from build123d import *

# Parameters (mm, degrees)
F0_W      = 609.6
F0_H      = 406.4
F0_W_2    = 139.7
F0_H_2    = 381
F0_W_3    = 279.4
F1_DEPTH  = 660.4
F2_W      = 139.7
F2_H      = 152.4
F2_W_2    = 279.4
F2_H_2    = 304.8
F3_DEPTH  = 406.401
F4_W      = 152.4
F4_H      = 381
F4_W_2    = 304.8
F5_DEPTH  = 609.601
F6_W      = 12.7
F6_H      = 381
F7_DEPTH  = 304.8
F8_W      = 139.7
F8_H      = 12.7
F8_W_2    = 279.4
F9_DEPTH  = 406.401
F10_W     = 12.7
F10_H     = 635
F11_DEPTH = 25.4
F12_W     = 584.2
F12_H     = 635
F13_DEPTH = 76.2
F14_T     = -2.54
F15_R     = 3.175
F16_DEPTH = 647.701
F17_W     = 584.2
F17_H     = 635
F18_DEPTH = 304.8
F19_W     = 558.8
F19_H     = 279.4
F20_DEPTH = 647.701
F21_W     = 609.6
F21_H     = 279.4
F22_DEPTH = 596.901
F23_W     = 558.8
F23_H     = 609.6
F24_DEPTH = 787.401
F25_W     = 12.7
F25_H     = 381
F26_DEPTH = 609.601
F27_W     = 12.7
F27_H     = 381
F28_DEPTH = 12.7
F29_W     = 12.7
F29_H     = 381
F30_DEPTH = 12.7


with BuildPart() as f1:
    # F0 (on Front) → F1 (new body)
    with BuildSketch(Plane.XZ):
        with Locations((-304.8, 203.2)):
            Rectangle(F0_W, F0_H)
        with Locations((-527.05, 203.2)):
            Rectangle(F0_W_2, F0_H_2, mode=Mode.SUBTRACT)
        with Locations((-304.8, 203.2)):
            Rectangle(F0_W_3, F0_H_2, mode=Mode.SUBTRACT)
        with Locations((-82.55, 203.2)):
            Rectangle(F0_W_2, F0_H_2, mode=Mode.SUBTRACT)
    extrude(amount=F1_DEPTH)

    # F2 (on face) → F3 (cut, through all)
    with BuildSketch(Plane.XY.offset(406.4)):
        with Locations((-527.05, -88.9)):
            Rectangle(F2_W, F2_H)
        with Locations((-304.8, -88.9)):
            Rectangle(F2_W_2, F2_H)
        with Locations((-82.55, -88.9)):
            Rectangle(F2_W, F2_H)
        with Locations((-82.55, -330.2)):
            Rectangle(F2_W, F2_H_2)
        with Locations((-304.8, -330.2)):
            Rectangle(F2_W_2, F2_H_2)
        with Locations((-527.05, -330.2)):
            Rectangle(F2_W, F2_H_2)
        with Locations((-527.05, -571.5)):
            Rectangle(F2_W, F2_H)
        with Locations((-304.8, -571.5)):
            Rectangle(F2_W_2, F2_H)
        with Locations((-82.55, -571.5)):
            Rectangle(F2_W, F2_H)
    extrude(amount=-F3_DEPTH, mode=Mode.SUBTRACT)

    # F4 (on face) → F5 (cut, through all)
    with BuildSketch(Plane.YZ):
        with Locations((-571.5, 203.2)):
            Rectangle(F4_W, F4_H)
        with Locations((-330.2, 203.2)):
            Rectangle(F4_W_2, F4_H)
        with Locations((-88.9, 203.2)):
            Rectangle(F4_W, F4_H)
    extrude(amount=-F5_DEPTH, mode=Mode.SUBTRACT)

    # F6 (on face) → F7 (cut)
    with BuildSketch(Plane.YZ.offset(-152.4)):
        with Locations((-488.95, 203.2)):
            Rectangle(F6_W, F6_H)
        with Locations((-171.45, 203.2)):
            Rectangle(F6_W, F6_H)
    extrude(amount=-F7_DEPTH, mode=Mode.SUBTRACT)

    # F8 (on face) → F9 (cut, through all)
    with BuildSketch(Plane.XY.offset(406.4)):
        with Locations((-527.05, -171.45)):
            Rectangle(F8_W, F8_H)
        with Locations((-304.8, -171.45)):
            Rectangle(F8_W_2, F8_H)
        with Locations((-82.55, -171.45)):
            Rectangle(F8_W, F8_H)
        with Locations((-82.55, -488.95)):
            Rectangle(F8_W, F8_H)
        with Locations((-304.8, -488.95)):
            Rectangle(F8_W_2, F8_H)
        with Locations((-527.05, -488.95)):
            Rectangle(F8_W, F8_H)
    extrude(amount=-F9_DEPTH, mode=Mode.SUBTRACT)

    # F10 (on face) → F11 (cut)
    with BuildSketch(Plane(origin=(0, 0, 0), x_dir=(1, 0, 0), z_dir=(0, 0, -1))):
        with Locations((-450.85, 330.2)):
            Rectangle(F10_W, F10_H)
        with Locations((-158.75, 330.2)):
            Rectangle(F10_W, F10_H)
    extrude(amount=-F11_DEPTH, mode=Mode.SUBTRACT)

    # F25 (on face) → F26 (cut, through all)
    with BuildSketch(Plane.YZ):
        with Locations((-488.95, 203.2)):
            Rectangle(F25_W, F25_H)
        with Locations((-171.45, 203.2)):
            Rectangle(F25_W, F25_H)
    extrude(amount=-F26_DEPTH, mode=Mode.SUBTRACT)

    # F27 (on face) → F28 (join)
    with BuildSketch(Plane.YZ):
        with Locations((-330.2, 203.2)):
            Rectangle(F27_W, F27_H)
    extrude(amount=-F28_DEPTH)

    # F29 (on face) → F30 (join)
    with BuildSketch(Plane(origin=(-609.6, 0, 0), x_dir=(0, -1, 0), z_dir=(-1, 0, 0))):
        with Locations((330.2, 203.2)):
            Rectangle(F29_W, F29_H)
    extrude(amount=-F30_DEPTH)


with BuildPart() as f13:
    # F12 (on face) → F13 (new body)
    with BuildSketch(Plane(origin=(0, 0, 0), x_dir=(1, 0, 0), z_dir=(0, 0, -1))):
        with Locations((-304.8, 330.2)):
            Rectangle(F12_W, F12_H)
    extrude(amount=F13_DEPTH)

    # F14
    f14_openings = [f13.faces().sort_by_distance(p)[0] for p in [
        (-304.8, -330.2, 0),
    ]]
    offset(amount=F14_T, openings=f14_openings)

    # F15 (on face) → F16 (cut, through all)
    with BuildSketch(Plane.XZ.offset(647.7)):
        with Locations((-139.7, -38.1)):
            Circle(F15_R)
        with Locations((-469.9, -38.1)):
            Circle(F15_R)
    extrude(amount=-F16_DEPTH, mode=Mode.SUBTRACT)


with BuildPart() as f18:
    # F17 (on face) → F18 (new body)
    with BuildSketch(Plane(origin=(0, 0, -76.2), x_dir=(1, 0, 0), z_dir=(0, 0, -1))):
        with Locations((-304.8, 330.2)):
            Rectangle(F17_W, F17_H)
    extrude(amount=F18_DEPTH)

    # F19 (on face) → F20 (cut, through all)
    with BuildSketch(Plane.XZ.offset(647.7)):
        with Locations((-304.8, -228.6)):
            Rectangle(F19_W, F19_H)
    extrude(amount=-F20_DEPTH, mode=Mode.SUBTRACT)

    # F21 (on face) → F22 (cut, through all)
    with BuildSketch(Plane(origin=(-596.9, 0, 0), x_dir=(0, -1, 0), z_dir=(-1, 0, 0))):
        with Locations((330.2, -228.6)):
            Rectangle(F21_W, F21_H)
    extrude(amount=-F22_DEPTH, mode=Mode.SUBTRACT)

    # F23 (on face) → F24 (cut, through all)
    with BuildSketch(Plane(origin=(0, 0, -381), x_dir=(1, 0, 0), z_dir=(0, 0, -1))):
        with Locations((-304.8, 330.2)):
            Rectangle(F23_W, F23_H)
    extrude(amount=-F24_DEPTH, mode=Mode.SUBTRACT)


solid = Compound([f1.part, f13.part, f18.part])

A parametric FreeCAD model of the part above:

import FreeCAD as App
import Part
import Sketcher
from FreeCAD import Vector
Q = App.Units.Quantity


def faces_at(feature, points):
    """Names of the faces that lie closest to the given points."""
    faces = feature.Shape.Faces
    near = lambda p: min(range(len(faces)), key=lambda i: faces[i].distToShape(Part.Vertex(*p))[0])
    return sorted({f"Face{near(p) + 1}" for p in points})

doc = App.newDocument("Part")
body = doc.addObject("PartDesign::Body", "Body")

# Sketch on XZ plane
sketch1 = body.newObject("Sketcher::SketchObject", "Sketch")
sketch1.AttachmentSupport = (doc.getObject("XZ_Plane"), [""])
sketch1.MapMode = "FlatFace"
sketch1.addGeometry([
    Part.LineSegment(Vector(-610, 406, 0), Vector(-610, 0, 0)),  # 0
    Part.LineSegment(Vector(-610, 0, 0), Vector(0, 0, 0)),  # 1
    Part.LineSegment(Vector(0, 0, 0), Vector(0, 406, 0)),  # 2
    Part.LineSegment(Vector(0, 406, 0), Vector(-610, 406, 0)),  # 3
    Part.LineSegment(Vector(-457, 13, 0), Vector(-597, 13, 0)),  # 4
    Part.LineSegment(Vector(-597, 13, 0), Vector(-597, 394, 0)),  # 5
    Part.LineSegment(Vector(-597, 394, 0), Vector(-457, 394, 0)),  # 6
    Part.LineSegment(Vector(-457, 394, 0), Vector(-457, 13, 0)),  # 7
    Part.LineSegment(Vector(-165, 13, 0), Vector(-444, 13, 0)),  # 8
    Part.LineSegment(Vector(-444, 13, 0), Vector(-444, 394, 0)),  # 9
    Part.LineSegment(Vector(-444, 394, 0), Vector(-165, 394, 0)),  # 10
    Part.LineSegment(Vector(-165, 394, 0), Vector(-165, 13, 0)),  # 11
    Part.LineSegment(Vector(-13, 13, 0), Vector(-152, 13, 0)),  # 12
    Part.LineSegment(Vector(-152, 13, 0), Vector(-152, 394, 0)),  # 13
    Part.LineSegment(Vector(-152, 394, 0), Vector(-13, 394, 0)),  # 14
    Part.LineSegment(Vector(-13, 394, 0), Vector(-13, 13, 0)),  # 15
], False)
sketch1.addConstraint([
    Sketcher.Constraint("Coincident", 0, 2, 1, 1),
    Sketcher.Constraint("Coincident", 1, 2, 2, 1),
    Sketcher.Constraint("Coincident", 2, 2, 3, 1),
    Sketcher.Constraint("Coincident", 3, 2, 0, 1),
    Sketcher.Constraint("Coincident", 4, 2, 5, 1),
    Sketcher.Constraint("Coincident", 5, 2, 6, 1),
    Sketcher.Constraint("Coincident", 6, 2, 7, 1),
    Sketcher.Constraint("Coincident", 7, 2, 4, 1),
    Sketcher.Constraint("Coincident", 8, 2, 9, 1),
    Sketcher.Constraint("Coincident", 9, 2, 10, 1),
    Sketcher.Constraint("Coincident", 10, 2, 11, 1),
    Sketcher.Constraint("Coincident", 11, 2, 8, 1),
    Sketcher.Constraint("Coincident", 12, 2, 13, 1),
    Sketcher.Constraint("Coincident", 13, 2, 14, 1),
    Sketcher.Constraint("Coincident", 14, 2, 15, 1),
    Sketcher.Constraint("Coincident", 15, 2, 12, 1),
    Sketcher.Constraint("Vertical", 0),
    Sketcher.Constraint("Horizontal", 1),
    Sketcher.Constraint("Vertical", 2),
    Sketcher.Constraint("Horizontal", 3),
    Sketcher.Constraint("Horizontal", 4),
    Sketcher.Constraint("Vertical", 5),
    Sketcher.Constraint("Horizontal", 6),
    Sketcher.Constraint("Vertical", 7),
    Sketcher.Constraint("Horizontal", 8),
    Sketcher.Constraint("Vertical", 9),
    Sketcher.Constraint("Horizontal", 10),
    Sketcher.Constraint("Vertical", 11),
    Sketcher.Constraint("Horizontal", 12),
    Sketcher.Constraint("Vertical", 13),
    Sketcher.Constraint("Horizontal", 14),
    Sketcher.Constraint("Vertical", 15),
    Sketcher.Constraint("Coincident", 1, 2, -1, 1),
    Sketcher.Constraint("Horizontal", 7, 2, 8, 2),
    Sketcher.Constraint("Horizontal", 6, 2, 9, 2),
    Sketcher.Constraint("Horizontal", 11, 2, 12, 2),
    Sketcher.Constraint("Horizontal", 10, 2, 13, 2),
    Sketcher.Constraint("Equal", 6, 12),
    Sketcher.Constraint("DistanceX", 1, 1, 1, 2, Q("24 in")),
    Sketcher.Constraint("DistanceX", 8, 2, 8, 1, Q("11 in")),
    Sketcher.Constraint("DistanceY", 0, 2, 0, 1, Q("16 in")),
    Sketcher.Constraint("DistanceY", 5, 1, 5, 2, Q("15 in")),
    Sketcher.Constraint("DistanceX", 4, 2, 4, 1, Q("5.5 in")),
    Sketcher.Constraint("DistanceX", 6, 2, -1, 1, Q("18 in")),
    Sketcher.Constraint("DistanceX", 12, 2, -1, 1, Q("6 in")),
    Sketcher.Constraint("DistanceX", 4, 2, 8, 2, Q("6 in")),
    Sketcher.Constraint("DistanceY", -1, 1, 4, 2, Q("0.5 in")),
])
pad1 = body.newObject("PartDesign::Pad", "Pad")
pad1.Profile = sketch1
pad1.Length = Q("26 in")

# Sketch on XY plane
sketch2 = body.newObject("Sketcher::SketchObject", "Sketch001")
sketch2.AttachmentSupport = (doc.getObject("XY_Plane"), [""])
sketch2.MapMode = "FlatFace"
sketch2.AttachmentOffset = App.Placement(Vector(0, 0, 16 * 25.4), App.Rotation())
sketch2.addGeometry([
    Part.LineSegment(Vector(-597, -13, 0), Vector(-597, -165, 0)),  # 0
    Part.LineSegment(Vector(-597, -165, 0), Vector(-457, -165, 0)),  # 1
    Part.LineSegment(Vector(-457, -165, 0), Vector(-457, -13, 0)),  # 2
    Part.LineSegment(Vector(-457, -13, 0), Vector(-597, -13, 0)),  # 3
    Part.LineSegment(Vector(-444, -13, 0), Vector(-444, -165, 0)),  # 4
    Part.LineSegment(Vector(-444, -165, 0), Vector(-165, -165, 0)),  # 5
    Part.LineSegment(Vector(-165, -165, 0), Vector(-165, -13, 0)),  # 6
    Part.LineSegment(Vector(-165, -13, 0), Vector(-444, -13, 0)),  # 7
    Part.LineSegment(Vector(-152, -13, 0), Vector(-152, -165, 0)),  # 8
    Part.LineSegment(Vector(-152, -165, 0), Vector(-13, -165, 0)),  # 9
    Part.LineSegment(Vector(-13, -165, 0), Vector(-13, -13, 0)),  # 10
    Part.LineSegment(Vector(-13, -13, 0), Vector(-152, -13, 0)),  # 11
    Part.LineSegment(Vector(-152, -178, 0), Vector(-152, -483, 0)),  # 12
    Part.LineSegment(Vector(-152, -483, 0), Vector(-13, -483, 0)),  # 13
    Part.LineSegment(Vector(-13, -483, 0), Vector(-13, -178, 0)),  # 14
    Part.LineSegment(Vector(-13, -178, 0), Vector(-152, -178, 0)),  # 15
    Part.LineSegment(Vector(-444, -178, 0), Vector(-444, -483, 0)),  # 16
    Part.LineSegment(Vector(-444, -483, 0), Vector(-165, -483, 0)),  # 17
    Part.LineSegment(Vector(-165, -483, 0), Vector(-165, -178, 0)),  # 18
    Part.LineSegment(Vector(-165, -178, 0), Vector(-444, -178, 0)),  # 19
    Part.LineSegment(Vector(-597, -178, 0), Vector(-597, -483, 0)),  # 20
    Part.LineSegment(Vector(-597, -483, 0), Vector(-457, -483, 0)),  # 21
    Part.LineSegment(Vector(-457, -483, 0), Vector(-457, -178, 0)),  # 22
    Part.LineSegment(Vector(-457, -178, 0), Vector(-597, -178, 0)),  # 23
    Part.LineSegment(Vector(-597, -495, 0), Vector(-597, -648, 0)),  # 24
    Part.LineSegment(Vector(-597, -648, 0), Vector(-457, -648, 0)),  # 25
    Part.LineSegment(Vector(-457, -648, 0), Vector(-457, -495, 0)),  # 26
    Part.LineSegment(Vector(-457, -495, 0), Vector(-597, -495, 0)),  # 27
    Part.LineSegment(Vector(-444, -495, 0), Vector(-444, -648, 0)),  # 28
    Part.LineSegment(Vector(-444, -648, 0), Vector(-165, -648, 0)),  # 29
    Part.LineSegment(Vector(-165, -648, 0), Vector(-165, -495, 0)),  # 30
    Part.LineSegment(Vector(-165, -495, 0), Vector(-444, -495, 0)),  # 31
    Part.LineSegment(Vector(-152, -495, 0), Vector(-152, -648, 0)),  # 32
    Part.LineSegment(Vector(-152, -648, 0), Vector(-13, -648, 0)),  # 33
    Part.LineSegment(Vector(-13, -648, 0), Vector(-13, -495, 0)),  # 34
    Part.LineSegment(Vector(-13, -495, 0), Vector(-152, -495, 0)),  # 35
], False)
sketch2.addConstraint([
    Sketcher.Constraint("Coincident", 0, 2, 1, 1),
    Sketcher.Constraint("Coincident", 1, 2, 2, 1),
    Sketcher.Constraint("Coincident", 2, 2, 3, 1),
    Sketcher.Constraint("Coincident", 3, 2, 0, 1),
    Sketcher.Constraint("Coincident", 4, 2, 5, 1),
    Sketcher.Constraint("Coincident", 5, 2, 6, 1),
    Sketcher.Constraint("Coincident", 6, 2, 7, 1),
    Sketcher.Constraint("Coincident", 7, 2, 4, 1),
    Sketcher.Constraint("Coincident", 8, 2, 9, 1),
    Sketcher.Constraint("Coincident", 9, 2, 10, 1),
    Sketcher.Constraint("Coincident", 10, 2, 11, 1),
    Sketcher.Constraint("Coincident", 11, 2, 8, 1),
    Sketcher.Constraint("Coincident", 12, 2, 13, 1),
    Sketcher.Constraint("Coincident", 13, 2, 14, 1),
    Sketcher.Constraint("Coincident", 14, 2, 15, 1),
    Sketcher.Constraint("Coincident", 15, 2, 12, 1),
    Sketcher.Constraint("Coincident", 16, 2, 17, 1),
    Sketcher.Constraint("Coincident", 17, 2, 18, 1),
    Sketcher.Constraint("Coincident", 18, 2, 19, 1),
    Sketcher.Constraint("Coincident", 19, 2, 16, 1),
    Sketcher.Constraint("Coincident", 20, 2, 21, 1),
    Sketcher.Constraint("Coincident", 21, 2, 22, 1),
    Sketcher.Constraint("Coincident", 22, 2, 23, 1),
    Sketcher.Constraint("Coincident", 23, 2, 20, 1),
    Sketcher.Constraint("Coincident", 24, 2, 25, 1),
    Sketcher.Constraint("Coincident", 25, 2, 26, 1),
    Sketcher.Constraint("Coincident", 26, 2, 27, 1),
    Sketcher.Constraint("Coincident", 27, 2, 24, 1),
    Sketcher.Constraint("Coincident", 28, 2, 29, 1),
    Sketcher.Constraint("Coincident", 29, 2, 30, 1),
    Sketcher.Constraint("Coincident", 30, 2, 31, 1),
    Sketcher.Constraint("Coincident", 31, 2, 28, 1),
    Sketcher.Constraint("Coincident", 32, 2, 33, 1),
    Sketcher.Constraint("Coincident", 33, 2, 34, 1),
    Sketcher.Constraint("Coincident", 34, 2, 35, 1),
    Sketcher.Constraint("Coincident", 35, 2, 32, 1),
    Sketcher.Constraint("Vertical", 0),
    Sketcher.Constraint("Horizontal", 1),
    Sketcher.Constraint("Vertical", 2),
    Sketcher.Constraint("Horizontal", 3),
    Sketcher.Constraint("Vertical", 4),
    Sketcher.Constraint("Horizontal", 5),
    Sketcher.Constraint("Vertical", 6),
    Sketcher.Constraint("Horizontal", 7),
    Sketcher.Constraint("Vertical", 8),
    Sketcher.Constraint("Horizontal", 9),
    Sketcher.Constraint("Vertical", 10),
    Sketcher.Constraint("Horizontal", 11),
    Sketcher.Constraint("Vertical", 12),
    Sketcher.Constraint("Horizontal", 13),
    Sketcher.Constraint("Vertical", 14),
    Sketcher.Constraint("Horizontal", 15),
    Sketcher.Constraint("Vertical", 16),
    Sketcher.Constraint("Horizontal", 17),
    Sketcher.Constraint("Vertical", 18),
    Sketcher.Constraint("Horizontal", 19),
    Sketcher.Constraint("Vertical", 20),
    Sketcher.Constraint("Horizontal", 21),
    Sketcher.Constraint("Vertical", 22),
    Sketcher.Constraint("Horizontal", 23),
    Sketcher.Constraint("Vertical", 24),
    Sketcher.Constraint("Horizontal", 25),
    Sketcher.Constraint("Vertical", 26),
    Sketcher.Constraint("Horizontal", 27),
    Sketcher.Constraint("Vertical", 28),
    Sketcher.Constraint("Horizontal", 29),
    Sketcher.Constraint("Vertical", 30),
    Sketcher.Constraint("Horizontal", 31),
    Sketcher.Constraint("Vertical", 32),
    Sketcher.Constraint("Horizontal", 33),
    Sketcher.Constraint("Vertical", 34),
    Sketcher.Constraint("Horizontal", 35),
    Sketcher.Constraint("Horizontal", 1, 2, 4, 2),
    Sketcher.Constraint("Horizontal", 3, 2, 6, 2),
    Sketcher.Constraint("Horizontal", 5, 2, 8, 2),
    Sketcher.Constraint("Horizontal", 7, 2, 10, 2),
    Sketcher.Constraint("Horizontal", 13, 2, 16, 2),
    Sketcher.Constraint("Horizontal", 15, 2, 18, 2),
    Sketcher.Constraint("Horizontal", 17, 2, 20, 2),
    Sketcher.Constraint("Horizontal", 19, 2, 22, 2),
    Sketcher.Constraint("Horizontal", 25, 2, 28, 2),
    Sketcher.Constraint("Horizontal", 27, 2, 30, 2),
    Sketcher.Constraint("Horizontal", 29, 2, 32, 2),
    Sketcher.Constraint("Horizontal", 31, 2, 34, 2),
    Sketcher.Constraint("Vertical", 11, 2, 12, 2),
    Sketcher.Constraint("Vertical", 10, 2, 13, 2),
    Sketcher.Constraint("Vertical", 7, 2, 16, 2),
    Sketcher.Constraint("Vertical", 6, 2, 17, 2),
    Sketcher.Constraint("Vertical", 3, 2, 20, 2),
    Sketcher.Constraint("Vertical", 2, 2, 21, 2),
    Sketcher.Constraint("Vertical", 23, 2, 24, 2),
    Sketcher.Constraint("Vertical", 22, 2, 25, 2),
    Sketcher.Constraint("Vertical", 19, 2, 28, 2),
    Sketcher.Constraint("Vertical", 18, 2, 29, 2),
    Sketcher.Constraint("Vertical", 15, 2, 32, 2),
    Sketcher.Constraint("Vertical", 14, 2, 33, 2),
    Sketcher.Constraint("Equal", 3, 9),
    Sketcher.Constraint("Equal", 10, 24),
    Sketcher.Constraint("DistanceX", 5, 1, 5, 2, Q("11 in")),
    Sketcher.Constraint("DistanceY", 0, 2, 0, 1, Q("6 in")),
    Sketcher.Constraint("DistanceY", 12, 2, 12, 1, Q("12 in")),
    Sketcher.Constraint("DistanceX", 1, 1, 1, 2, Q("5.5 in")),
    Sketcher.Constraint("DistanceX", 1, 2, -1, 1, Q("18 in")),
    Sketcher.Constraint("DistanceX", 8, 2, -1, 1, Q("6 in")),
    Sketcher.Constraint("DistanceY", 12, 2, -1, 1, Q("19 in")),
    Sketcher.Constraint("DistanceX", 0, 2, 4, 2, Q("6 in")),
    Sketcher.Constraint("DistanceY", 0, 2, -1, 1, Q("6.5 in")),
    Sketcher.Constraint("DistanceY", 24, 2, -1, 1, Q("25.5 in")),
])
pocket1 = body.newObject("PartDesign::Pocket", "Pocket")
pocket1.Profile = sketch2
pocket1.Type = "ThroughAll"

# Sketch on YZ plane
sketch3 = body.newObject("Sketcher::SketchObject", "Sketch002")
sketch3.AttachmentSupport = (doc.getObject("YZ_Plane"), [""])
sketch3.MapMode = "FlatFace"
sketch3.addGeometry([
    Part.LineSegment(Vector(-648, 394, 0), Vector(-648, 13, 0)),  # 0
    Part.LineSegment(Vector(-648, 13, 0), Vector(-495, 13, 0)),  # 1
    Part.LineSegment(Vector(-495, 13, 0), Vector(-495, 394, 0)),  # 2
    Part.LineSegment(Vector(-495, 394, 0), Vector(-648, 394, 0)),  # 3
    Part.LineSegment(Vector(-483, 394, 0), Vector(-483, 13, 0)),  # 4
    Part.LineSegment(Vector(-483, 13, 0), Vector(-178, 13, 0)),  # 5
    Part.LineSegment(Vector(-178, 13, 0), Vector(-178, 394, 0)),  # 6
    Part.LineSegment(Vector(-178, 394, 0), Vector(-483, 394, 0)),  # 7
    Part.LineSegment(Vector(-165, 394, 0), Vector(-165, 13, 0)),  # 8
    Part.LineSegment(Vector(-165, 13, 0), Vector(-13, 13, 0)),  # 9
    Part.LineSegment(Vector(-13, 13, 0), Vector(-13, 394, 0)),  # 10
    Part.LineSegment(Vector(-13, 394, 0), Vector(-165, 394, 0)),  # 11
], False)
sketch3.addConstraint([
    Sketcher.Constraint("Coincident", 0, 2, 1, 1),
    Sketcher.Constraint("Coincident", 1, 2, 2, 1),
    Sketcher.Constraint("Coincident", 2, 2, 3, 1),
    Sketcher.Constraint("Coincident", 3, 2, 0, 1),
    Sketcher.Constraint("Coincident", 4, 2, 5, 1),
    Sketcher.Constraint("Coincident", 5, 2, 6, 1),
    Sketcher.Constraint("Coincident", 6, 2, 7, 1),
    Sketcher.Constraint("Coincident", 7, 2, 4, 1),
    Sketcher.Constraint("Coincident", 8, 2, 9, 1),
    Sketcher.Constraint("Coincident", 9, 2, 10, 1),
    Sketcher.Constraint("Coincident", 10, 2, 11, 1),
    Sketcher.Constraint("Coincident", 11, 2, 8, 1),
    Sketcher.Constraint("Vertical", 0),
    Sketcher.Constraint("Horizontal", 1),
    Sketcher.Constraint("Vertical", 2),
    Sketcher.Constraint("Horizontal", 3),
    Sketcher.Constraint("Vertical", 4),
    Sketcher.Constraint("Horizontal", 5),
    Sketcher.Constraint("Vertical", 6),
    Sketcher.Constraint("Horizontal", 7),
    Sketcher.Constraint("Vertical", 8),
    Sketcher.Constraint("Horizontal", 9),
    Sketcher.Constraint("Vertical", 10),
    Sketcher.Constraint("Horizontal", 11),
    Sketcher.Constraint("Horizontal", 1, 2, 4, 2),
    Sketcher.Constraint("Horizontal", 3, 2, 6, 2),
    Sketcher.Constraint("Horizontal", 5, 2, 8, 2),
    Sketcher.Constraint("Horizontal", 7, 2, 10, 2),
    Sketcher.Constraint("Equal", 3, 9),
    Sketcher.Constraint("DistanceX", 1, 1, 1, 2, Q("6 in")),
    Sketcher.Constraint("DistanceX", 5, 1, 5, 2, Q("12 in")),
    Sketcher.Constraint("DistanceY", 0, 2, 0, 1, Q("15 in")),
    Sketcher.Constraint("DistanceX", 4, 2, -1, 1, Q("19 in")),
    Sketcher.Constraint("DistanceX", 1, 2, 8, 2, Q("13 in")),
    Sketcher.Constraint("DistanceX", 0, 2, -1, 1, Q("25.5 in")),
    Sketcher.Constraint("DistanceY", -1, 1, 0, 2, Q("0.5 in")),
])
pocket2 = body.newObject("PartDesign::Pocket", "Pocket001")
pocket2.Profile = sketch3
pocket2.Type = "ThroughAll"

# Sketch on YZ plane
sketch4 = body.newObject("Sketcher::SketchObject", "Sketch003")
sketch4.AttachmentSupport = (doc.getObject("YZ_Plane"), [""])
sketch4.MapMode = "FlatFace"
sketch4.AttachmentOffset = App.Placement(Vector(0, 0, -6 * 25.4), App.Rotation())
sketch4.addGeometry([
    Part.LineSegment(Vector(-495, 394, 0), Vector(-495, 13, 0)),  # 0
    Part.LineSegment(Vector(-495, 13, 0), Vector(-483, 13, 0)),  # 1
    Part.LineSegment(Vector(-483, 13, 0), Vector(-483, 394, 0)),  # 2
    Part.LineSegment(Vector(-483, 394, 0), Vector(-495, 394, 0)),  # 3
    Part.LineSegment(Vector(-178, 394, 0), Vector(-178, 13, 0)),  # 4
    Part.LineSegment(Vector(-178, 13, 0), Vector(-165, 13, 0)),  # 5
    Part.LineSegment(Vector(-165, 13, 0), Vector(-165, 394, 0)),  # 6
    Part.LineSegment(Vector(-165, 394, 0), Vector(-178, 394, 0)),  # 7
], False)
sketch4.addConstraint([
    Sketcher.Constraint("Coincident", 0, 2, 1, 1),
    Sketcher.Constraint("Coincident", 1, 2, 2, 1),
    Sketcher.Constraint("Coincident", 2, 2, 3, 1),
    Sketcher.Constraint("Coincident", 3, 2, 0, 1),
    Sketcher.Constraint("Coincident", 4, 2, 5, 1),
    Sketcher.Constraint("Coincident", 5, 2, 6, 1),
    Sketcher.Constraint("Coincident", 6, 2, 7, 1),
    Sketcher.Constraint("Coincident", 7, 2, 4, 1),
    Sketcher.Constraint("Vertical", 0),
    Sketcher.Constraint("Horizontal", 1),
    Sketcher.Constraint("Vertical", 2),
    Sketcher.Constraint("Horizontal", 3),
    Sketcher.Constraint("Vertical", 4),
    Sketcher.Constraint("Horizontal", 5),
    Sketcher.Constraint("Vertical", 6),
    Sketcher.Constraint("Horizontal", 7),
    Sketcher.Constraint("Horizontal", 1, 2, 4, 2),
    Sketcher.Constraint("Horizontal", 3, 2, 6, 2),
    Sketcher.Constraint("Equal", 3, 5),
    Sketcher.Constraint("DistanceY", 0, 2, 0, 1, Q("15 in")),
    Sketcher.Constraint("DistanceX", 1, 1, 1, 2, Q("0.5 in")),
    Sketcher.Constraint("DistanceX", 1, 2, -1, 1, Q("19 in")),
    Sketcher.Constraint("DistanceX", 4, 2, -1, 1, Q("7 in")),
    Sketcher.Constraint("DistanceY", -1, 1, 0, 2, Q("0.5 in")),
])
pocket3 = body.newObject("PartDesign::Pocket", "Pocket002")
pocket3.Profile = sketch4
pocket3.Length = Q("12 in")

# Sketch on XY plane
sketch5 = body.newObject("Sketcher::SketchObject", "Sketch004")
sketch5.AttachmentSupport = (doc.getObject("XY_Plane"), [""])
sketch5.MapMode = "FlatFace"
sketch5.AttachmentOffset = App.Placement(Vector(0, 0, 16 * 25.4), App.Rotation())
sketch5.addGeometry([
    Part.LineSegment(Vector(-597, -165, 0), Vector(-597, -178, 0)),  # 0
    Part.LineSegment(Vector(-597, -178, 0), Vector(-457, -178, 0)),  # 1
    Part.LineSegment(Vector(-457, -178, 0), Vector(-457, -165, 0)),  # 2
    Part.LineSegment(Vector(-457, -165, 0), Vector(-597, -165, 0)),  # 3
    Part.LineSegment(Vector(-444, -165, 0), Vector(-444, -178, 0)),  # 4
    Part.LineSegment(Vector(-444, -178, 0), Vector(-165, -178, 0)),  # 5
    Part.LineSegment(Vector(-165, -178, 0), Vector(-165, -165, 0)),  # 6
    Part.LineSegment(Vector(-165, -165, 0), Vector(-444, -165, 0)),  # 7
    Part.LineSegment(Vector(-152, -165, 0), Vector(-152, -178, 0)),  # 8
    Part.LineSegment(Vector(-152, -178, 0), Vector(-13, -178, 0)),  # 9
    Part.LineSegment(Vector(-13, -178, 0), Vector(-13, -165, 0)),  # 10
    Part.LineSegment(Vector(-13, -165, 0), Vector(-152, -165, 0)),  # 11
    Part.LineSegment(Vector(-152, -483, 0), Vector(-152, -495, 0)),  # 12
    Part.LineSegment(Vector(-152, -495, 0), Vector(-13, -495, 0)),  # 13
    Part.LineSegment(Vector(-13, -495, 0), Vector(-13, -483, 0)),  # 14
    Part.LineSegment(Vector(-13, -483, 0), Vector(-152, -483, 0)),  # 15
    Part.LineSegment(Vector(-444, -483, 0), Vector(-444, -495, 0)),  # 16
    Part.LineSegment(Vector(-444, -495, 0), Vector(-165, -495, 0)),  # 17
    Part.LineSegment(Vector(-165, -495, 0), Vector(-165, -483, 0)),  # 18
    Part.LineSegment(Vector(-165, -483, 0), Vector(-444, -483, 0)),  # 19
    Part.LineSegment(Vector(-597, -483, 0), Vector(-597, -495, 0)),  # 20
    Part.LineSegment(Vector(-597, -495, 0), Vector(-457, -495, 0)),  # 21
    Part.LineSegment(Vector(-457, -495, 0), Vector(-457, -483, 0)),  # 22
    Part.LineSegment(Vector(-457, -483, 0), Vector(-597, -483, 0)),  # 23
], False)
sketch5.addConstraint([
    Sketcher.Constraint("Coincident", 0, 2, 1, 1),
    Sketcher.Constraint("Coincident", 1, 2, 2, 1),
    Sketcher.Constraint("Coincident", 2, 2, 3, 1),
    Sketcher.Constraint("Coincident", 3, 2, 0, 1),
    Sketcher.Constraint("Coincident", 4, 2, 5, 1),
    Sketcher.Constraint("Coincident", 5, 2, 6, 1),
    Sketcher.Constraint("Coincident", 6, 2, 7, 1),
    Sketcher.Constraint("Coincident", 7, 2, 4, 1),
    Sketcher.Constraint("Coincident", 8, 2, 9, 1),
    Sketcher.Constraint("Coincident", 9, 2, 10, 1),
    Sketcher.Constraint("Coincident", 10, 2, 11, 1),
    Sketcher.Constraint("Coincident", 11, 2, 8, 1),
    Sketcher.Constraint("Coincident", 12, 2, 13, 1),
    Sketcher.Constraint("Coincident", 13, 2, 14, 1),
    Sketcher.Constraint("Coincident", 14, 2, 15, 1),
    Sketcher.Constraint("Coincident", 15, 2, 12, 1),
    Sketcher.Constraint("Coincident", 16, 2, 17, 1),
    Sketcher.Constraint("Coincident", 17, 2, 18, 1),
    Sketcher.Constraint("Coincident", 18, 2, 19, 1),
    Sketcher.Constraint("Coincident", 19, 2, 16, 1),
    Sketcher.Constraint("Coincident", 20, 2, 21, 1),
    Sketcher.Constraint("Coincident", 21, 2, 22, 1),
    Sketcher.Constraint("Coincident", 22, 2, 23, 1),
    Sketcher.Constraint("Coincident", 23, 2, 20, 1),
    Sketcher.Constraint("Vertical", 0),
    Sketcher.Constraint("Horizontal", 1),
    Sketcher.Constraint("Vertical", 2),
    Sketcher.Constraint("Horizontal", 3),
    Sketcher.Constraint("Vertical", 4),
    Sketcher.Constraint("Horizontal", 5),
    Sketcher.Constraint("Vertical", 6),
    Sketcher.Constraint("Horizontal", 7),
    Sketcher.Constraint("Vertical", 8),
    Sketcher.Constraint("Horizontal", 9),
    Sketcher.Constraint("Vertical", 10),
    Sketcher.Constraint("Horizontal", 11),
    Sketcher.Constraint("Vertical", 12),
    Sketcher.Constraint("Horizontal", 13),
    Sketcher.Constraint("Vertical", 14),
    Sketcher.Constraint("Horizontal", 15),
    Sketcher.Constraint("Vertical", 16),
    Sketcher.Constraint("Horizontal", 17),
    Sketcher.Constraint("Vertical", 18),
    Sketcher.Constraint("Horizontal", 19),
    Sketcher.Constraint("Vertical", 20),
    Sketcher.Constraint("Horizontal", 21),
    Sketcher.Constraint("Vertical", 22),
    Sketcher.Constraint("Horizontal", 23),
    Sketcher.Constraint("Horizontal", 1, 2, 4, 2),
    Sketcher.Constraint("Horizontal", 3, 2, 6, 2),
    Sketcher.Constraint("Horizontal", 5, 2, 8, 2),
    Sketcher.Constraint("Horizontal", 7, 2, 10, 2),
    Sketcher.Constraint("Horizontal", 13, 2, 16, 2),
    Sketcher.Constraint("Horizontal", 15, 2, 18, 2),
    Sketcher.Constraint("Horizontal", 17, 2, 20, 2),
    Sketcher.Constraint("Horizontal", 19, 2, 22, 2),
    Sketcher.Constraint("Vertical", 11, 2, 12, 2),
    Sketcher.Constraint("Vertical", 10, 2, 13, 2),
    Sketcher.Constraint("Vertical", 7, 2, 16, 2),
    Sketcher.Constraint("Vertical", 6, 2, 17, 2),
    Sketcher.Constraint("Vertical", 3, 2, 20, 2),
    Sketcher.Constraint("Vertical", 2, 2, 21, 2),
    Sketcher.Constraint("Equal", 3, 9),
    Sketcher.Constraint("Equal", 10, 12),
    Sketcher.Constraint("DistanceX", 5, 1, 5, 2, Q("11 in")),
    Sketcher.Constraint("DistanceX", 1, 1, 1, 2, Q("5.5 in")),
    Sketcher.Constraint("DistanceY", 0, 2, 0, 1, Q("0.5 in")),
    Sketcher.Constraint("DistanceY", 0, 2, -1, 1, Q("7 in")),
    Sketcher.Constraint("DistanceX", 1, 2, -1, 1, Q("18 in")),
    Sketcher.Constraint("DistanceX", 8, 2, -1, 1, Q("6 in")),
    Sketcher.Constraint("DistanceY", 14, 2, -1, 1, Q("19 in")),
    Sketcher.Constraint("DistanceX", 0, 2, 4, 2, Q("6 in")),
])
pocket4 = body.newObject("PartDesign::Pocket", "Pocket003")
pocket4.Profile = sketch5
pocket4.Type = "ThroughAll"

# Sketch on XY plane
sketch6 = body.newObject("Sketcher::SketchObject", "Sketch005")
sketch6.AttachmentSupport = (doc.getObject("XY_Plane"), [""])
sketch6.MapMode = "FlatFace"
sketch6.addGeometry([
    Part.LineSegment(Vector(-457, -648, 0), Vector(-457, -13, 0)),  # 0
    Part.LineSegment(Vector(-457, -13, 0), Vector(-444, -13, 0)),  # 1
    Part.LineSegment(Vector(-444, -13, 0), Vector(-444, -648, 0)),  # 2
    Part.LineSegment(Vector(-444, -648, 0), Vector(-457, -648, 0)),  # 3
    Part.LineSegment(Vector(-165, -648, 0), Vector(-165, -13, 0)),  # 4
    Part.LineSegment(Vector(-165, -13, 0), Vector(-152, -13, 0)),  # 5
    Part.LineSegment(Vector(-152, -13, 0), Vector(-152, -648, 0)),  # 6
    Part.LineSegment(Vector(-152, -648, 0), Vector(-165, -648, 0)),  # 7
], False)
sketch6.addConstraint([
    Sketcher.Constraint("Coincident", 0, 2, 1, 1),
    Sketcher.Constraint("Coincident", 1, 2, 2, 1),
    Sketcher.Constraint("Coincident", 2, 2, 3, 1),
    Sketcher.Constraint("Coincident", 3, 2, 0, 1),
    Sketcher.Constraint("Coincident", 4, 2, 5, 1),
    Sketcher.Constraint("Coincident", 5, 2, 6, 1),
    Sketcher.Constraint("Coincident", 6, 2, 7, 1),
    Sketcher.Constraint("Coincident", 7, 2, 4, 1),
    Sketcher.Constraint("Vertical", 0),
    Sketcher.Constraint("Horizontal", 1),
    Sketcher.Constraint("Vertical", 2),
    Sketcher.Constraint("Horizontal", 3),
    Sketcher.Constraint("Vertical", 4),
    Sketcher.Constraint("Horizontal", 5),
    Sketcher.Constraint("Vertical", 6),
    Sketcher.Constraint("Horizontal", 7),
    Sketcher.Constraint("Horizontal", 1, 2, 4, 2),
    Sketcher.Constraint("Horizontal", 3, 2, 6, 2),
    Sketcher.Constraint("Equal", 3, 5),
    Sketcher.Constraint("DistanceY", 0, 1, 0, 2, Q("25 in")),
    Sketcher.Constraint("DistanceX", 1, 1, 1, 2, Q("0.5 in")),
    Sketcher.Constraint("DistanceX", 0, 2, -1, 1, Q("18 in")),
    Sketcher.Constraint("DistanceX", 5, 2, -1, 1, Q("6 in")),
    Sketcher.Constraint("DistanceY", 0, 2, -1, 1, Q("0.5 in")),
])
pocket5 = body.newObject("PartDesign::Pocket", "Pocket004")
pocket5.Profile = sketch6
pocket5.Length = Q("1 in")
pocket5.Reversed = True

# Sketch on YZ plane
sketch7 = body.newObject("Sketcher::SketchObject", "Sketch006")
sketch7.AttachmentSupport = (doc.getObject("YZ_Plane"), [""])
sketch7.MapMode = "FlatFace"
sketch7.addGeometry([
    Part.LineSegment(Vector(-495, 394, 0), Vector(-495, 13, 0)),  # 0
    Part.LineSegment(Vector(-495, 13, 0), Vector(-483, 13, 0)),  # 1
    Part.LineSegment(Vector(-483, 13, 0), Vector(-483, 394, 0)),  # 2
    Part.LineSegment(Vector(-483, 394, 0), Vector(-495, 394, 0)),  # 3
    Part.LineSegment(Vector(-178, 394, 0), Vector(-178, 13, 0)),  # 4
    Part.LineSegment(Vector(-178, 13, 0), Vector(-165, 13, 0)),  # 5
    Part.LineSegment(Vector(-165, 13, 0), Vector(-165, 394, 0)),  # 6
    Part.LineSegment(Vector(-165, 394, 0), Vector(-178, 394, 0)),  # 7
], False)
sketch7.addConstraint([
    Sketcher.Constraint("Coincident", 0, 2, 1, 1),
    Sketcher.Constraint("Coincident", 1, 2, 2, 1),
    Sketcher.Constraint("Coincident", 2, 2, 3, 1),
    Sketcher.Constraint("Coincident", 3, 2, 0, 1),
    Sketcher.Constraint("Coincident", 4, 2, 5, 1),
    Sketcher.Constraint("Coincident", 5, 2, 6, 1),
    Sketcher.Constraint("Coincident", 6, 2, 7, 1),
    Sketcher.Constraint("Coincident", 7, 2, 4, 1),
    Sketcher.Constraint("Vertical", 0),
    Sketcher.Constraint("Horizontal", 1),
    Sketcher.Constraint("Vertical", 2),
    Sketcher.Constraint("Horizontal", 3),
    Sketcher.Constraint("Vertical", 4),
    Sketcher.Constraint("Horizontal", 5),
    Sketcher.Constraint("Vertical", 6),
    Sketcher.Constraint("Horizontal", 7),
    Sketcher.Constraint("Horizontal", 1, 2, 4, 2),
    Sketcher.Constraint("Horizontal", 3, 2, 6, 2),
    Sketcher.Constraint("Equal", 3, 5),
    Sketcher.Constraint("DistanceY", 0, 2, 0, 1, Q("15 in")),
    Sketcher.Constraint("DistanceX", 1, 1, 1, 2, Q("0.5 in")),
    Sketcher.Constraint("DistanceX", 1, 2, -1, 1, Q("19 in")),
    Sketcher.Constraint("DistanceX", 4, 2, -1, 1, Q("7 in")),
    Sketcher.Constraint("DistanceY", -1, 1, 0, 2, Q("0.5 in")),
])
pocket6 = body.newObject("PartDesign::Pocket", "Pocket005")
pocket6.Profile = sketch7
pocket6.Type = "ThroughAll"

# Sketch on YZ plane
sketch8 = body.newObject("Sketcher::SketchObject", "Sketch007")
sketch8.AttachmentSupport = (doc.getObject("YZ_Plane"), [""])
sketch8.MapMode = "FlatFace"
sketch8.addGeometry([
    Part.LineSegment(Vector(-337, 394, 0), Vector(-337, 13, 0)),
    Part.LineSegment(Vector(-337, 13, 0), Vector(-324, 13, 0)),
    Part.LineSegment(Vector(-324, 13, 0), Vector(-324, 394, 0)),
    Part.LineSegment(Vector(-324, 394, 0), Vector(-337, 394, 0)),
], False)
sketch8.addConstraint([
    Sketcher.Constraint("Coincident", 0, 2, 1, 1),
    Sketcher.Constraint("Coincident", 1, 2, 2, 1),
    Sketcher.Constraint("Coincident", 2, 2, 3, 1),
    Sketcher.Constraint("Coincident", 3, 2, 0, 1),
    Sketcher.Constraint("Vertical", 0),
    Sketcher.Constraint("Horizontal", 1),
    Sketcher.Constraint("Vertical", 2),
    Sketcher.Constraint("Horizontal", 3),
    Sketcher.Constraint("DistanceY", 0, 2, 0, 1, Q("15 in")),
    Sketcher.Constraint("DistanceX", 1, 1, 1, 2, Q("0.5 in")),
    Sketcher.Constraint("DistanceY", -1, 1, 0, 2, Q("0.5 in")),
    Sketcher.Constraint("DistanceX", 0, 2, -1, 1, Q("13.25 in")),
])
pad2 = body.newObject("PartDesign::Pad", "Pad001")
pad2.Profile = sketch8
pad2.Length = Q("0.5 in")
pad2.Reversed = True

# Sketch on YZ plane
sketch9 = body.newObject("Sketcher::SketchObject", "Sketch008")
sketch9.AttachmentSupport = (doc.getObject("YZ_Plane"), [""])
sketch9.MapMode = "FlatFace"
sketch9.AttachmentOffset = App.Placement(Vector(0, 0, -24 * 25.4), App.Rotation())
sketch9.addGeometry([
    Part.LineSegment(Vector(-324, 394, 0), Vector(-324, 13, 0)),
    Part.LineSegment(Vector(-324, 13, 0), Vector(-337, 13, 0)),
    Part.LineSegment(Vector(-337, 13, 0), Vector(-337, 394, 0)),
    Part.LineSegment(Vector(-337, 394, 0), Vector(-324, 394, 0)),
], False)
sketch9.addConstraint([
    Sketcher.Constraint("Coincident", 0, 2, 1, 1),
    Sketcher.Constraint("Coincident", 1, 2, 2, 1),
    Sketcher.Constraint("Coincident", 2, 2, 3, 1),
    Sketcher.Constraint("Coincident", 3, 2, 0, 1),
    Sketcher.Constraint("Vertical", 0),
    Sketcher.Constraint("Horizontal", 1),
    Sketcher.Constraint("Vertical", 2),
    Sketcher.Constraint("Horizontal", 3),
    Sketcher.Constraint("DistanceY", 0, 2, 0, 1, Q("15 in")),
    Sketcher.Constraint("DistanceX", 1, 2, 1, 1, Q("0.5 in")),
    Sketcher.Constraint("DistanceY", -1, 1, 0, 2, Q("0.5 in")),
    Sketcher.Constraint("DistanceX", 0, 2, -1, 1, Q("12.75 in")),
])
pad3 = body.newObject("PartDesign::Pad", "Pad002")
pad3.Profile = sketch9
pad3.Length = Q("0.5 in")
body2 = doc.addObject("PartDesign::Body", "Body001")

# Sketch on XY plane
sketch10 = body2.newObject("Sketcher::SketchObject", "Sketch009")
sketch10.AttachmentSupport = (doc.getObject("XY_Plane001"), [""])
sketch10.MapMode = "FlatFace"
sketch10.addGeometry([
    Part.LineSegment(Vector(-597, -648, 0), Vector(-597, -13, 0)),
    Part.LineSegment(Vector(-597, -13, 0), Vector(-13, -13, 0)),
    Part.LineSegment(Vector(-13, -13, 0), Vector(-13, -648, 0)),
    Part.LineSegment(Vector(-13, -648, 0), Vector(-597, -648, 0)),
], False)
sketch10.addConstraint([
    Sketcher.Constraint("Coincident", 0, 2, 1, 1),
    Sketcher.Constraint("Coincident", 1, 2, 2, 1),
    Sketcher.Constraint("Coincident", 2, 2, 3, 1),
    Sketcher.Constraint("Coincident", 3, 2, 0, 1),
    Sketcher.Constraint("Vertical", 0),
    Sketcher.Constraint("Horizontal", 1),
    Sketcher.Constraint("Vertical", 2),
    Sketcher.Constraint("Horizontal", 3),
    Sketcher.Constraint("DistanceX", 1, 1, 1, 2, Q("23 in")),
    Sketcher.Constraint("DistanceY", 0, 1, 0, 2, Q("25 in")),
    Sketcher.Constraint("DistanceX", 0, 2, -1, 1, Q("23.5 in")),
    Sketcher.Constraint("DistanceY", 0, 2, -1, 1, Q("0.5 in")),
])
pad4 = body2.newObject("PartDesign::Pad", "Pad003")
pad4.Profile = sketch10
pad4.Length = Q("3 in")
pad4.Reversed = True
doc.recompute()

thickness = body2.newObject("PartDesign::Thickness", "Thickness")
thickness.Base = (pad4, faces_at(pad4, [(-304.8, -330.2, 0)]))
thickness.Value = Q("0.1 in")
thickness.Reversed = True
thickness.Join = "Arc"

# Sketch on XZ plane
sketch11 = body2.newObject("Sketcher::SketchObject", "Sketch010")
sketch11.AttachmentSupport = (doc.getObject("XZ_Plane001"), [""])
sketch11.MapMode = "FlatFace"
sketch11.AttachmentOffset = App.Placement(Vector(0, 0, 25.5 * 25.4), App.Rotation())
sketch11.addGeometry([
    Part.Circle(Vector(-139.7, -38.1, 0), Vector(0, 0, 1), 3.2),
    Part.Circle(Vector(-469.9, -38.1, 0), Vector(0, 0, 1), 3.2),
], False)
sketch11.addConstraint([
    Sketcher.Constraint("Equal", 0, 1),
    Sketcher.Constraint("Horizontal", 0, 3, 1, 3),
    Sketcher.Constraint("Diameter", 0, Q("0.25 in")),
    Sketcher.Constraint("DistanceX", 1, 3, 0, 3, Q("13 in")),
    Sketcher.Constraint("DistanceX", 0, 3, -1, 1, Q("5.5 in")),
    Sketcher.Constraint("DistanceY", 0, 3, -1, 1, Q("1.5 in")),
])
pocket7 = body2.newObject("PartDesign::Pocket", "Pocket006")
pocket7.Profile = sketch11
pocket7.Type = "ThroughAll"
body3 = doc.addObject("PartDesign::Body", "Body002")

# Sketch on XY plane
sketch12 = body3.newObject("Sketcher::SketchObject", "Sketch011")
sketch12.AttachmentSupport = (doc.getObject("XY_Plane002"), [""])
sketch12.MapMode = "FlatFace"
sketch12.AttachmentOffset = App.Placement(Vector(0, 0, -3 * 25.4), App.Rotation())
sketch12.addGeometry([
    Part.LineSegment(Vector(-597, -648, 0), Vector(-597, -13, 0)),
    Part.LineSegment(Vector(-597, -13, 0), Vector(-13, -13, 0)),
    Part.LineSegment(Vector(-13, -13, 0), Vector(-13, -648, 0)),
    Part.LineSegment(Vector(-13, -648, 0), Vector(-597, -648, 0)),
], False)
sketch12.addConstraint([
    Sketcher.Constraint("Coincident", 0, 2, 1, 1),
    Sketcher.Constraint("Coincident", 1, 2, 2, 1),
    Sketcher.Constraint("Coincident", 2, 2, 3, 1),
    Sketcher.Constraint("Coincident", 3, 2, 0, 1),
    Sketcher.Constraint("Vertical", 0),
    Sketcher.Constraint("Horizontal", 1),
    Sketcher.Constraint("Vertical", 2),
    Sketcher.Constraint("Horizontal", 3),
    Sketcher.Constraint("DistanceX", 1, 1, 1, 2, Q("23 in")),
    Sketcher.Constraint("DistanceY", 0, 1, 0, 2, Q("25 in")),
    Sketcher.Constraint("DistanceX", 0, 2, -1, 1, Q("23.5 in")),
    Sketcher.Constraint("DistanceY", 0, 2, -1, 1, Q("0.5 in")),
])
pad5 = body3.newObject("PartDesign::Pad", "Pad004")
pad5.Profile = sketch12
pad5.Length = Q("12 in")
pad5.Reversed = True

# Sketch on XZ plane
sketch13 = body3.newObject("Sketcher::SketchObject", "Sketch012")
sketch13.AttachmentSupport = (doc.getObject("XZ_Plane002"), [""])
sketch13.MapMode = "FlatFace"
sketch13.AttachmentOffset = App.Placement(Vector(0, 0, 25.5 * 25.4), App.Rotation())
sketch13.addGeometry([
    Part.LineSegment(Vector(-584, -89, 0), Vector(-584, -368, 0)),
    Part.LineSegment(Vector(-584, -368, 0), Vector(-25, -368, 0)),
    Part.LineSegment(Vector(-25, -368, 0), Vector(-25, -89, 0)),
    Part.LineSegment(Vector(-25, -89, 0), Vector(-584, -89, 0)),
], False)
sketch13.addConstraint([
    Sketcher.Constraint("Coincident", 0, 2, 1, 1),
    Sketcher.Constraint("Coincident", 1, 2, 2, 1),
    Sketcher.Constraint("Coincident", 2, 2, 3, 1),
    Sketcher.Constraint("Coincident", 3, 2, 0, 1),
    Sketcher.Constraint("Vertical", 0),
    Sketcher.Constraint("Horizontal", 1),
    Sketcher.Constraint("Vertical", 2),
    Sketcher.Constraint("Horizontal", 3),
    Sketcher.Constraint("DistanceX", 1, 1, 1, 2, Q("22 in")),
    Sketcher.Constraint("DistanceY", 0, 2, 0, 1, Q("11 in")),
    Sketcher.Constraint("DistanceX", 0, 2, -1, 1, Q("23 in")),
    Sketcher.Constraint("DistanceY", 0, 2, -1, 1, Q("14.5 in")),
])
pocket8 = body3.newObject("PartDesign::Pocket", "Pocket007")
pocket8.Profile = sketch13
pocket8.Type = "ThroughAll"

# Sketch on YZ plane
sketch14 = body3.newObject("Sketcher::SketchObject", "Sketch013")
sketch14.AttachmentSupport = (doc.getObject("YZ_Plane002"), [""])
sketch14.MapMode = "FlatFace"
sketch14.AttachmentOffset = App.Placement(Vector(0, 0, -23.5 * 25.4), App.Rotation())
sketch14.addGeometry([
    Part.LineSegment(Vector(-25, -89, 0), Vector(-25, -368, 0)),
    Part.LineSegment(Vector(-25, -368, 0), Vector(-635, -368, 0)),
    Part.LineSegment(Vector(-635, -368, 0), Vector(-635, -89, 0)),
    Part.LineSegment(Vector(-635, -89, 0), Vector(-25, -89, 0)),
], False)
sketch14.addConstraint([
    Sketcher.Constraint("Coincident", 0, 2, 1, 1),
    Sketcher.Constraint("Coincident", 1, 2, 2, 1),
    Sketcher.Constraint("Coincident", 2, 2, 3, 1),
    Sketcher.Constraint("Coincident", 3, 2, 0, 1),
    Sketcher.Constraint("Vertical", 0),
    Sketcher.Constraint("Horizontal", 1),
    Sketcher.Constraint("Vertical", 2),
    Sketcher.Constraint("Horizontal", 3),
    Sketcher.Constraint("DistanceX", 1, 2, 1, 1, Q("24 in")),
    Sketcher.Constraint("DistanceY", 0, 2, 0, 1, Q("11 in")),
    Sketcher.Constraint("DistanceX", 0, 2, -1, 1, Q("1 in")),
    Sketcher.Constraint("DistanceY", 0, 2, -1, 1, Q("14.5 in")),
])
pocket9 = body3.newObject("PartDesign::Pocket", "Pocket008")
pocket9.Profile = sketch14
pocket9.Type = "ThroughAll"
pocket9.Reversed = True

# Sketch on XY plane
sketch15 = body3.newObject("Sketcher::SketchObject", "Sketch014")
sketch15.AttachmentSupport = (doc.getObject("XY_Plane002"), [""])
sketch15.MapMode = "FlatFace"
sketch15.AttachmentOffset = App.Placement(Vector(0, 0, -15 * 25.4), App.Rotation())
sketch15.addGeometry([
    Part.LineSegment(Vector(-584, -635, 0), Vector(-584, -25, 0)),
    Part.LineSegment(Vector(-584, -25, 0), Vector(-25, -25, 0)),
    Part.LineSegment(Vector(-25, -25, 0), Vector(-25, -635, 0)),
    Part.LineSegment(Vector(-25, -635, 0), Vector(-584, -635, 0)),
], False)
sketch15.addConstraint([
    Sketcher.Constraint("Coincident", 0, 2, 1, 1),
    Sketcher.Constraint("Coincident", 1, 2, 2, 1),
    Sketcher.Constraint("Coincident", 2, 2, 3, 1),
    Sketcher.Constraint("Coincident", 3, 2, 0, 1),
    Sketcher.Constraint("Vertical", 0),
    Sketcher.Constraint("Horizontal", 1),
    Sketcher.Constraint("Vertical", 2),
    Sketcher.Constraint("Horizontal", 3),
    Sketcher.Constraint("DistanceX", 1, 1, 1, 2, Q("22 in")),
    Sketcher.Constraint("DistanceY", 0, 1, 0, 2, Q("24 in")),
    Sketcher.Constraint("DistanceX", 0, 2, -1, 1, Q("23 in")),
    Sketcher.Constraint("DistanceY", 0, 2, -1, 1, Q("1 in")),
])
pocket10 = body3.newObject("PartDesign::Pocket", "Pocket009")
pocket10.Profile = sketch15
pocket10.Type = "ThroughAll"
pocket10.Reversed = True

doc.recompute()
